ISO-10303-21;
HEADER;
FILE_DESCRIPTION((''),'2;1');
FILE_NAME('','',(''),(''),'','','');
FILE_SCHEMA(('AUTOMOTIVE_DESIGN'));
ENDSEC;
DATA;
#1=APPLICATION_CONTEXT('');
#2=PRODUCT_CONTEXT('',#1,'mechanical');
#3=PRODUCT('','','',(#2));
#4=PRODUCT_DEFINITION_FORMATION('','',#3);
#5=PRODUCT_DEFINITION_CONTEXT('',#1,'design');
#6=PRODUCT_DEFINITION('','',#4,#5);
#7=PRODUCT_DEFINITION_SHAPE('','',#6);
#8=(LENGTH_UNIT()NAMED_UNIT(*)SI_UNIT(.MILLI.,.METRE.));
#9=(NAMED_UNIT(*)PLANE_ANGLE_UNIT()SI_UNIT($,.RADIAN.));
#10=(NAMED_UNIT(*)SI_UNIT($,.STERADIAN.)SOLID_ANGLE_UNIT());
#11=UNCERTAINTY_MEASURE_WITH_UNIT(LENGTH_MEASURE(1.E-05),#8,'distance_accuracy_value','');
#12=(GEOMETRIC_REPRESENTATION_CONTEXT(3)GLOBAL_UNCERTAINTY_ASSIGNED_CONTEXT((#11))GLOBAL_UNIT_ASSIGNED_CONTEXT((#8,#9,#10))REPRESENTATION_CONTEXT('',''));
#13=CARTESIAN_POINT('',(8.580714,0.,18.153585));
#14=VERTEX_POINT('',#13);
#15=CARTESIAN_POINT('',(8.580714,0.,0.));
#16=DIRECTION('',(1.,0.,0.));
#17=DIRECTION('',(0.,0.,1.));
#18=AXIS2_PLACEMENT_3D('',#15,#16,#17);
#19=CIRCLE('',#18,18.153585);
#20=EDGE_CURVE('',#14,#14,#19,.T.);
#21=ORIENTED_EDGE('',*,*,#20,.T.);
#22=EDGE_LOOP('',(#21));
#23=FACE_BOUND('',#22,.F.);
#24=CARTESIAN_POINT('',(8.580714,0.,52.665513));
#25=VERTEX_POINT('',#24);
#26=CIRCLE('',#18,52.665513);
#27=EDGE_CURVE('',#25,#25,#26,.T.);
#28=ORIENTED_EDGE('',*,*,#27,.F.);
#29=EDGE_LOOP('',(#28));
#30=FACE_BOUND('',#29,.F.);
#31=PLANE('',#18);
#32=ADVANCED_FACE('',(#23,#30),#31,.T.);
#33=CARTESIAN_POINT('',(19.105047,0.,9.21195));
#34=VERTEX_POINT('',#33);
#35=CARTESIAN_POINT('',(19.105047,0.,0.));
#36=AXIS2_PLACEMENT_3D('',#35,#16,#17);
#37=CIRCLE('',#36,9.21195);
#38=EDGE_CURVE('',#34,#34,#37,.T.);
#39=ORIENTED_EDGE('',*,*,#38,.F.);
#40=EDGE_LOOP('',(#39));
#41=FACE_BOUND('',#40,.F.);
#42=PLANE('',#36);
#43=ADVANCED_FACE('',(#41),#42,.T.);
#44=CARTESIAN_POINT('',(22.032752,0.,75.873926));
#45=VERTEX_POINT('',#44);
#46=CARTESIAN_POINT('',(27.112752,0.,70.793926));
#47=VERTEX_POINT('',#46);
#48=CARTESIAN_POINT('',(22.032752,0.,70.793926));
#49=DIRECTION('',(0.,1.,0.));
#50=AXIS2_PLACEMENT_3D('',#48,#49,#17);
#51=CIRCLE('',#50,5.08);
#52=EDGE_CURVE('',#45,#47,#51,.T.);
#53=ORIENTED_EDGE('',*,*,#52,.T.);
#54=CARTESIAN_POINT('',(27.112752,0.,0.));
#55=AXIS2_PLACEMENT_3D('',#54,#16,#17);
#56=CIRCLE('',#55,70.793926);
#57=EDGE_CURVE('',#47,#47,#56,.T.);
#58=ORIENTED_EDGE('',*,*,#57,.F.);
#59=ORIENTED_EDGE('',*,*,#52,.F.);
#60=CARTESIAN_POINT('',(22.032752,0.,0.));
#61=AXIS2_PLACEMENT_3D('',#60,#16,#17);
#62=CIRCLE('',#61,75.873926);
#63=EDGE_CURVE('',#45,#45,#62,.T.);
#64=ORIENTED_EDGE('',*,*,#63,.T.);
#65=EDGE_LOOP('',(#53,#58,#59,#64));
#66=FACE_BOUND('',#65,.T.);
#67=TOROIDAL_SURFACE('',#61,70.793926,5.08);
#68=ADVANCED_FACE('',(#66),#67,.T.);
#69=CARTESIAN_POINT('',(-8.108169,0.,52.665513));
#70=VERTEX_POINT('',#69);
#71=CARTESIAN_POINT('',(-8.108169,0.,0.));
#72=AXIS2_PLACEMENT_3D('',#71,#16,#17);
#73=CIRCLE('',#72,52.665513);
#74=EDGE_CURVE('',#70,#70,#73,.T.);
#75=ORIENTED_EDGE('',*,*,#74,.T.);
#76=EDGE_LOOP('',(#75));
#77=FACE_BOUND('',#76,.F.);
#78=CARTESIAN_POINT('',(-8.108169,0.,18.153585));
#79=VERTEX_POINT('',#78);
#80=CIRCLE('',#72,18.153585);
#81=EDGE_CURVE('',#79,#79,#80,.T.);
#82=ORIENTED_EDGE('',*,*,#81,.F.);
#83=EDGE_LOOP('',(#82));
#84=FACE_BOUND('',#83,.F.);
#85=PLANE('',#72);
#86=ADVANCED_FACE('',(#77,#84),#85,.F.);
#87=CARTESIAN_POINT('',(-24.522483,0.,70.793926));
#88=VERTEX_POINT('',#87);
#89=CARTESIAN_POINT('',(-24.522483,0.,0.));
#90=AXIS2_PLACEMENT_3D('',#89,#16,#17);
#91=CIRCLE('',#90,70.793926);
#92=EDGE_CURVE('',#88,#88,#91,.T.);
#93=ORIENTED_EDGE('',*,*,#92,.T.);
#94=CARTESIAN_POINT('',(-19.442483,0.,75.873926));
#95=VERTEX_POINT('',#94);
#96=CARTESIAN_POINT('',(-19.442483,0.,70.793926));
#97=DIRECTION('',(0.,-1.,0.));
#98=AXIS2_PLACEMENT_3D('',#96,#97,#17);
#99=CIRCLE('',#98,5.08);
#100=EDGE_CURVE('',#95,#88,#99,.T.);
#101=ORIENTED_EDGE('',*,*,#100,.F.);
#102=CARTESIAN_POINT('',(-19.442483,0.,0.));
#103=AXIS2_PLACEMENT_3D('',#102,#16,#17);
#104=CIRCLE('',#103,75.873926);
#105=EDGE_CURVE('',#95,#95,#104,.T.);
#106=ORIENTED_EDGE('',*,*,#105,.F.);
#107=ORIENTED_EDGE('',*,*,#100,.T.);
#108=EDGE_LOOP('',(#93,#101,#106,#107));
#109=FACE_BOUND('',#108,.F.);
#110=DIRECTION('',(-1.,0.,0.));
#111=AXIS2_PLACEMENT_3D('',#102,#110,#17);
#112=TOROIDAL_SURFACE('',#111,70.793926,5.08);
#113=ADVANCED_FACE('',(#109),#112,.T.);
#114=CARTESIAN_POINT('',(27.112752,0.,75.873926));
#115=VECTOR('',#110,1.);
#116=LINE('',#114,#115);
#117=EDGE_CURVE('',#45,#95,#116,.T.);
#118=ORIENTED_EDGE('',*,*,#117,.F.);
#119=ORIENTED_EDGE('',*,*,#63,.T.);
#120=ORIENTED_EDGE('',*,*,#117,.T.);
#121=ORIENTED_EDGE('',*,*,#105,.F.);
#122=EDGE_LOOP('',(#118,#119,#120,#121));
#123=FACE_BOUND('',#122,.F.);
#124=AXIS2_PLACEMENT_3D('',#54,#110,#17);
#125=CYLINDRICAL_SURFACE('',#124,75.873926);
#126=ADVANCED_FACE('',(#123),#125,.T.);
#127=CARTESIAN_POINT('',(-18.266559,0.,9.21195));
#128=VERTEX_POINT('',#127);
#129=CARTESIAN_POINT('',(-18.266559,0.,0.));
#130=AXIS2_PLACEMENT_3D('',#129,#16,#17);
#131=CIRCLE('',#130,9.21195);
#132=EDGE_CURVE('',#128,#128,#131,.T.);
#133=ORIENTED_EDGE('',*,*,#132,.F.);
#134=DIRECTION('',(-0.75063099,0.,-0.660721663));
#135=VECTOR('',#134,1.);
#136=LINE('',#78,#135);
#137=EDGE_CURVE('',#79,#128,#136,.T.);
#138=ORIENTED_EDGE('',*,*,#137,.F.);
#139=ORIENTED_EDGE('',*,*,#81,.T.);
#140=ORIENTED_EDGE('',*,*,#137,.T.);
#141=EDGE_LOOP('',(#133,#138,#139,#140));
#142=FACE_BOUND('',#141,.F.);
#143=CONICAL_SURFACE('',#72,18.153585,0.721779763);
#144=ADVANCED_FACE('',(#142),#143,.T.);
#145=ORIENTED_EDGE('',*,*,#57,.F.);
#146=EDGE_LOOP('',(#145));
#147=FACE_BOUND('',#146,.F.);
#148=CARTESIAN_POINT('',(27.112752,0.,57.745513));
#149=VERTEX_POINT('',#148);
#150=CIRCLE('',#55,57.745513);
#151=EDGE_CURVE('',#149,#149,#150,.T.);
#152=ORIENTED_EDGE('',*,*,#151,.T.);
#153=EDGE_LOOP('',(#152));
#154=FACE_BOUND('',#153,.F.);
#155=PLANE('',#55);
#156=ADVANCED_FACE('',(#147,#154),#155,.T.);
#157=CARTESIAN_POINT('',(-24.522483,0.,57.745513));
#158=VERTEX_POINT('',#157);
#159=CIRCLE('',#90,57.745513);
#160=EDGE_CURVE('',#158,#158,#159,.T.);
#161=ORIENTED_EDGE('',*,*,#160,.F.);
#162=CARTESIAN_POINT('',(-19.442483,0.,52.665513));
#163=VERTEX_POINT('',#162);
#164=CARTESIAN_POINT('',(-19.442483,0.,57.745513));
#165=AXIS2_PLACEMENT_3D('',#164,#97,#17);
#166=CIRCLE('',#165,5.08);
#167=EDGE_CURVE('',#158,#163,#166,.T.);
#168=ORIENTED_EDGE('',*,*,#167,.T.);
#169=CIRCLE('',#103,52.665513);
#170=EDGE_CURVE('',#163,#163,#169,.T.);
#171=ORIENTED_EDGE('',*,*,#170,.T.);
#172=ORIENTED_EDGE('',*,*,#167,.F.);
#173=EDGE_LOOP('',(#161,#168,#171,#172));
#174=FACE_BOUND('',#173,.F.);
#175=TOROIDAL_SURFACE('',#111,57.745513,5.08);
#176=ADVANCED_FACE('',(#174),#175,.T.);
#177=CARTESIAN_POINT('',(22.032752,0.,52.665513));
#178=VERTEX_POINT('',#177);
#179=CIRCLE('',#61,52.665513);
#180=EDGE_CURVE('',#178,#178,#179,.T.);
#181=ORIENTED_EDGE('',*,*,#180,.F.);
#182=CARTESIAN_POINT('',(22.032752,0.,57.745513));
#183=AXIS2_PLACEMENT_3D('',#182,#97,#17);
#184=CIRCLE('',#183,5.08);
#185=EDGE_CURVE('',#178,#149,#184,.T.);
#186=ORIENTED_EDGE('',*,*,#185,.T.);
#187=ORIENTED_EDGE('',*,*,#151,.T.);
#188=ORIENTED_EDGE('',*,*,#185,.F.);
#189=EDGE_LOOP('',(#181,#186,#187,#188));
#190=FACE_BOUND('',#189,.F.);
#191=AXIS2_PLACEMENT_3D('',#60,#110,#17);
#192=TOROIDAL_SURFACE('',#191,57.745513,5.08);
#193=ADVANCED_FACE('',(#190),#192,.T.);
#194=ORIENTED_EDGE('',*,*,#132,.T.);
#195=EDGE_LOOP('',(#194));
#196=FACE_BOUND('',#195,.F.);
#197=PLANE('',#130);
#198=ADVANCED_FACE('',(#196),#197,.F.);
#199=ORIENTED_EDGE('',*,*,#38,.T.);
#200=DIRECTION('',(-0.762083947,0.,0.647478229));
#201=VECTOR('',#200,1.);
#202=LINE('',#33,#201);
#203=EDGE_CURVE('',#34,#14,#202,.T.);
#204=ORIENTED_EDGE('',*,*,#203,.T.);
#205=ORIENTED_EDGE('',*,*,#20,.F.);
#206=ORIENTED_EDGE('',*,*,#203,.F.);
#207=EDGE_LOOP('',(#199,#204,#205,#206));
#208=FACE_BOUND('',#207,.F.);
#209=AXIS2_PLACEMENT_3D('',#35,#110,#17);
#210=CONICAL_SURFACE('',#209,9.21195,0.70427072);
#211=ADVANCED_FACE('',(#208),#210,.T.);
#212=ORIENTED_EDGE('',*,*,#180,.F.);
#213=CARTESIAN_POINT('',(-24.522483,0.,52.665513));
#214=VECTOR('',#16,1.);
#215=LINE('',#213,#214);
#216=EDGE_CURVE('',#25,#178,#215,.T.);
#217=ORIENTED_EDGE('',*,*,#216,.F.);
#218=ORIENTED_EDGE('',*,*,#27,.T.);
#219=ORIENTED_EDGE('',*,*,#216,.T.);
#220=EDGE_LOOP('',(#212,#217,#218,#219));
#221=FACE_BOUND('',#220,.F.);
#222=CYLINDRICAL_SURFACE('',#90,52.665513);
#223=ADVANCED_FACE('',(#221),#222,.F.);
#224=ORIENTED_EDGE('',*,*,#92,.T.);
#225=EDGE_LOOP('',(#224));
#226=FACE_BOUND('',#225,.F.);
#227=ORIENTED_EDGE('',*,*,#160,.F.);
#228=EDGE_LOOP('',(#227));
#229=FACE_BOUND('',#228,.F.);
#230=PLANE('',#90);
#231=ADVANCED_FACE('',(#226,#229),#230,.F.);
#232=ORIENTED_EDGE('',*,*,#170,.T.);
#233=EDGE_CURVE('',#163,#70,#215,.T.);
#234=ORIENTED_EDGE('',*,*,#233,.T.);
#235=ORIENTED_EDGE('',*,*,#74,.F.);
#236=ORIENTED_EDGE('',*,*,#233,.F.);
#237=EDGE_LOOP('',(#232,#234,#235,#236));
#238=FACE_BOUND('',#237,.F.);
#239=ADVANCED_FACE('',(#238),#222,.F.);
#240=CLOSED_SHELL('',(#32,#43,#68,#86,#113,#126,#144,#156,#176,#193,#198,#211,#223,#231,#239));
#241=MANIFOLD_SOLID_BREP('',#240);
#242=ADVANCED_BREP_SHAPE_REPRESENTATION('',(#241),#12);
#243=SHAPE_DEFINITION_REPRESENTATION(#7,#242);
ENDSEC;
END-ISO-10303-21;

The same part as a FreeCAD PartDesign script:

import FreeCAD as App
import Part
import Sketcher

V = App.Vector
Q = App.Units.Quantity


def edges_at(feature, points):
    """Names of the edges that pass closest to the given points."""
    edges = feature.Shape.Edges
    near = lambda p: min(range(len(edges)), key=lambda i: edges[i].distToShape(Part.Vertex(*p))[0])
    return sorted({f"Edge{near(p) + 1}" for p in points})


def add_polygon(sketch, points):
    """Adds a closed chain of lines whose ends are joined by coincident constraints."""
    first, n = sketch.GeometryCount, len(points)
    for a, b in zip(points, points[1:] + points[:1]):
        sketch.addGeometry(Part.LineSegment(App.Vector(*a, 0), App.Vector(*b, 0)), False)
    for i in range(n):
        sketch.addConstraint(Sketcher.Constraint("Coincident", first + i, 2, first + (i + 1) % n, 1))

doc = App.newDocument("Part")
body = doc.addObject("PartDesign::Body", "Body")

# Sketch on XZ plane
sketch1 = doc.addObject("Sketcher::SketchObject", "Sketch")
body.addObject(sketch1)
sketch1.AttachmentSupport = (doc.XZ_Plane, [""])
sketch1.MapMode = "FlatFace"
add_polygon(sketch1, [(27.112752, 75.873926), (-24.522483, 75.873926), (-24.522483, 52.665513), (-8.108169, 52.665513), (-8.108169, 18.153585), (-18.266559, 9.21195), (-18.266559, 0), (19.105047, 0), (19.105047, 9.21195), (8.580714, 18.153585), (8.580714, 52.665513), (27.112752, 52.665513)])  # lines 0-11
sketch1.addConstraint(Sketcher.Constraint("Horizontal", 0))
sketch1.addConstraint(Sketcher.Constraint("Vertical", 1))
sketch1.addConstraint(Sketcher.Constraint("Horizontal", 2))
sketch1.addConstraint(Sketcher.Constraint("Vertical", 3))
sketch1.addConstraint(Sketcher.Constraint("Vertical", 5))
sketch1.addConstraint(Sketcher.Constraint("Horizontal", 6))
sketch1.addConstraint(Sketcher.Constraint("Vertical", 7))
sketch1.addConstraint(Sketcher.Constraint("Vertical", 9))
sketch1.addConstraint(Sketcher.Constraint("Horizontal", 10))
sketch1.addConstraint(Sketcher.Constraint("Vertical", 11))
sketch1.addConstraint(Sketcher.Constraint("PointOnObject", 5, 2, -1))
sketch1.addConstraint(Sketcher.Constraint("Horizontal", 4, 2, 7, 2))
sketch1.addConstraint(Sketcher.Constraint("Horizontal", 3, 2, 8, 2))
sketch1.addConstraint(Sketcher.Constraint("Horizontal", 2, 2, 9, 2))
sketch1.addConstraint(Sketcher.Constraint("DistanceX", 10, 1, 10, 2, 18.532038))
sketch1.addConstraint(Sketcher.Constraint("DistanceY", 5, 2, 5, 1, 9.21195))
sketch1.addConstraint(Sketcher.Constraint("Distance", 8, 13.809939))
sketch1.addConstraint(Sketcher.Constraint("DistanceX", 0, 2, 0, 1, 51.635235))
sketch1.addConstraint(Sketcher.Constraint("DistanceX", 2, 1, 2, 2, 16.414314))
sketch1.addConstraint(Sketcher.Constraint("DistanceX", 6, 1, 6, 2, 37.371606))
sketch1.addConstraint(Sketcher.Constraint("DistanceY", 1, 2, 1, 1, 23.208413))
sketch1.addConstraint(Sketcher.Constraint("DistanceY", 3, 2, 3, 1, 34.511928))
sketch1.addConstraint(Sketcher.Constraint("DistanceX", 2, 2, -1, 1, 8.108169))
sketch1.addConstraint(Sketcher.Constraint("DistanceX", 4, 2, -1, 1, 18.266559))
revolution = doc.addObject("PartDesign::Revolution", "Revolution")
body.addObject(revolution)
revolution.Profile = sketch1
revolution.ReferenceAxis = (sketch1, ["H_Axis"])
revolution.Angle = 360
doc.recompute()

fillet = doc.addObject("PartDesign::Fillet", "Fillet")
body.addObject(fillet)
fillet.Base = (revolution, edges_at(revolution, [
    (-24.522, 0, -75.874),
    (-24.522, 0, -52.666),
    (27.113, 0, -75.874),
    (27.113, 0, -52.666),
]))
fillet.Radius = Q("0.2 in")

doc.recompute()
